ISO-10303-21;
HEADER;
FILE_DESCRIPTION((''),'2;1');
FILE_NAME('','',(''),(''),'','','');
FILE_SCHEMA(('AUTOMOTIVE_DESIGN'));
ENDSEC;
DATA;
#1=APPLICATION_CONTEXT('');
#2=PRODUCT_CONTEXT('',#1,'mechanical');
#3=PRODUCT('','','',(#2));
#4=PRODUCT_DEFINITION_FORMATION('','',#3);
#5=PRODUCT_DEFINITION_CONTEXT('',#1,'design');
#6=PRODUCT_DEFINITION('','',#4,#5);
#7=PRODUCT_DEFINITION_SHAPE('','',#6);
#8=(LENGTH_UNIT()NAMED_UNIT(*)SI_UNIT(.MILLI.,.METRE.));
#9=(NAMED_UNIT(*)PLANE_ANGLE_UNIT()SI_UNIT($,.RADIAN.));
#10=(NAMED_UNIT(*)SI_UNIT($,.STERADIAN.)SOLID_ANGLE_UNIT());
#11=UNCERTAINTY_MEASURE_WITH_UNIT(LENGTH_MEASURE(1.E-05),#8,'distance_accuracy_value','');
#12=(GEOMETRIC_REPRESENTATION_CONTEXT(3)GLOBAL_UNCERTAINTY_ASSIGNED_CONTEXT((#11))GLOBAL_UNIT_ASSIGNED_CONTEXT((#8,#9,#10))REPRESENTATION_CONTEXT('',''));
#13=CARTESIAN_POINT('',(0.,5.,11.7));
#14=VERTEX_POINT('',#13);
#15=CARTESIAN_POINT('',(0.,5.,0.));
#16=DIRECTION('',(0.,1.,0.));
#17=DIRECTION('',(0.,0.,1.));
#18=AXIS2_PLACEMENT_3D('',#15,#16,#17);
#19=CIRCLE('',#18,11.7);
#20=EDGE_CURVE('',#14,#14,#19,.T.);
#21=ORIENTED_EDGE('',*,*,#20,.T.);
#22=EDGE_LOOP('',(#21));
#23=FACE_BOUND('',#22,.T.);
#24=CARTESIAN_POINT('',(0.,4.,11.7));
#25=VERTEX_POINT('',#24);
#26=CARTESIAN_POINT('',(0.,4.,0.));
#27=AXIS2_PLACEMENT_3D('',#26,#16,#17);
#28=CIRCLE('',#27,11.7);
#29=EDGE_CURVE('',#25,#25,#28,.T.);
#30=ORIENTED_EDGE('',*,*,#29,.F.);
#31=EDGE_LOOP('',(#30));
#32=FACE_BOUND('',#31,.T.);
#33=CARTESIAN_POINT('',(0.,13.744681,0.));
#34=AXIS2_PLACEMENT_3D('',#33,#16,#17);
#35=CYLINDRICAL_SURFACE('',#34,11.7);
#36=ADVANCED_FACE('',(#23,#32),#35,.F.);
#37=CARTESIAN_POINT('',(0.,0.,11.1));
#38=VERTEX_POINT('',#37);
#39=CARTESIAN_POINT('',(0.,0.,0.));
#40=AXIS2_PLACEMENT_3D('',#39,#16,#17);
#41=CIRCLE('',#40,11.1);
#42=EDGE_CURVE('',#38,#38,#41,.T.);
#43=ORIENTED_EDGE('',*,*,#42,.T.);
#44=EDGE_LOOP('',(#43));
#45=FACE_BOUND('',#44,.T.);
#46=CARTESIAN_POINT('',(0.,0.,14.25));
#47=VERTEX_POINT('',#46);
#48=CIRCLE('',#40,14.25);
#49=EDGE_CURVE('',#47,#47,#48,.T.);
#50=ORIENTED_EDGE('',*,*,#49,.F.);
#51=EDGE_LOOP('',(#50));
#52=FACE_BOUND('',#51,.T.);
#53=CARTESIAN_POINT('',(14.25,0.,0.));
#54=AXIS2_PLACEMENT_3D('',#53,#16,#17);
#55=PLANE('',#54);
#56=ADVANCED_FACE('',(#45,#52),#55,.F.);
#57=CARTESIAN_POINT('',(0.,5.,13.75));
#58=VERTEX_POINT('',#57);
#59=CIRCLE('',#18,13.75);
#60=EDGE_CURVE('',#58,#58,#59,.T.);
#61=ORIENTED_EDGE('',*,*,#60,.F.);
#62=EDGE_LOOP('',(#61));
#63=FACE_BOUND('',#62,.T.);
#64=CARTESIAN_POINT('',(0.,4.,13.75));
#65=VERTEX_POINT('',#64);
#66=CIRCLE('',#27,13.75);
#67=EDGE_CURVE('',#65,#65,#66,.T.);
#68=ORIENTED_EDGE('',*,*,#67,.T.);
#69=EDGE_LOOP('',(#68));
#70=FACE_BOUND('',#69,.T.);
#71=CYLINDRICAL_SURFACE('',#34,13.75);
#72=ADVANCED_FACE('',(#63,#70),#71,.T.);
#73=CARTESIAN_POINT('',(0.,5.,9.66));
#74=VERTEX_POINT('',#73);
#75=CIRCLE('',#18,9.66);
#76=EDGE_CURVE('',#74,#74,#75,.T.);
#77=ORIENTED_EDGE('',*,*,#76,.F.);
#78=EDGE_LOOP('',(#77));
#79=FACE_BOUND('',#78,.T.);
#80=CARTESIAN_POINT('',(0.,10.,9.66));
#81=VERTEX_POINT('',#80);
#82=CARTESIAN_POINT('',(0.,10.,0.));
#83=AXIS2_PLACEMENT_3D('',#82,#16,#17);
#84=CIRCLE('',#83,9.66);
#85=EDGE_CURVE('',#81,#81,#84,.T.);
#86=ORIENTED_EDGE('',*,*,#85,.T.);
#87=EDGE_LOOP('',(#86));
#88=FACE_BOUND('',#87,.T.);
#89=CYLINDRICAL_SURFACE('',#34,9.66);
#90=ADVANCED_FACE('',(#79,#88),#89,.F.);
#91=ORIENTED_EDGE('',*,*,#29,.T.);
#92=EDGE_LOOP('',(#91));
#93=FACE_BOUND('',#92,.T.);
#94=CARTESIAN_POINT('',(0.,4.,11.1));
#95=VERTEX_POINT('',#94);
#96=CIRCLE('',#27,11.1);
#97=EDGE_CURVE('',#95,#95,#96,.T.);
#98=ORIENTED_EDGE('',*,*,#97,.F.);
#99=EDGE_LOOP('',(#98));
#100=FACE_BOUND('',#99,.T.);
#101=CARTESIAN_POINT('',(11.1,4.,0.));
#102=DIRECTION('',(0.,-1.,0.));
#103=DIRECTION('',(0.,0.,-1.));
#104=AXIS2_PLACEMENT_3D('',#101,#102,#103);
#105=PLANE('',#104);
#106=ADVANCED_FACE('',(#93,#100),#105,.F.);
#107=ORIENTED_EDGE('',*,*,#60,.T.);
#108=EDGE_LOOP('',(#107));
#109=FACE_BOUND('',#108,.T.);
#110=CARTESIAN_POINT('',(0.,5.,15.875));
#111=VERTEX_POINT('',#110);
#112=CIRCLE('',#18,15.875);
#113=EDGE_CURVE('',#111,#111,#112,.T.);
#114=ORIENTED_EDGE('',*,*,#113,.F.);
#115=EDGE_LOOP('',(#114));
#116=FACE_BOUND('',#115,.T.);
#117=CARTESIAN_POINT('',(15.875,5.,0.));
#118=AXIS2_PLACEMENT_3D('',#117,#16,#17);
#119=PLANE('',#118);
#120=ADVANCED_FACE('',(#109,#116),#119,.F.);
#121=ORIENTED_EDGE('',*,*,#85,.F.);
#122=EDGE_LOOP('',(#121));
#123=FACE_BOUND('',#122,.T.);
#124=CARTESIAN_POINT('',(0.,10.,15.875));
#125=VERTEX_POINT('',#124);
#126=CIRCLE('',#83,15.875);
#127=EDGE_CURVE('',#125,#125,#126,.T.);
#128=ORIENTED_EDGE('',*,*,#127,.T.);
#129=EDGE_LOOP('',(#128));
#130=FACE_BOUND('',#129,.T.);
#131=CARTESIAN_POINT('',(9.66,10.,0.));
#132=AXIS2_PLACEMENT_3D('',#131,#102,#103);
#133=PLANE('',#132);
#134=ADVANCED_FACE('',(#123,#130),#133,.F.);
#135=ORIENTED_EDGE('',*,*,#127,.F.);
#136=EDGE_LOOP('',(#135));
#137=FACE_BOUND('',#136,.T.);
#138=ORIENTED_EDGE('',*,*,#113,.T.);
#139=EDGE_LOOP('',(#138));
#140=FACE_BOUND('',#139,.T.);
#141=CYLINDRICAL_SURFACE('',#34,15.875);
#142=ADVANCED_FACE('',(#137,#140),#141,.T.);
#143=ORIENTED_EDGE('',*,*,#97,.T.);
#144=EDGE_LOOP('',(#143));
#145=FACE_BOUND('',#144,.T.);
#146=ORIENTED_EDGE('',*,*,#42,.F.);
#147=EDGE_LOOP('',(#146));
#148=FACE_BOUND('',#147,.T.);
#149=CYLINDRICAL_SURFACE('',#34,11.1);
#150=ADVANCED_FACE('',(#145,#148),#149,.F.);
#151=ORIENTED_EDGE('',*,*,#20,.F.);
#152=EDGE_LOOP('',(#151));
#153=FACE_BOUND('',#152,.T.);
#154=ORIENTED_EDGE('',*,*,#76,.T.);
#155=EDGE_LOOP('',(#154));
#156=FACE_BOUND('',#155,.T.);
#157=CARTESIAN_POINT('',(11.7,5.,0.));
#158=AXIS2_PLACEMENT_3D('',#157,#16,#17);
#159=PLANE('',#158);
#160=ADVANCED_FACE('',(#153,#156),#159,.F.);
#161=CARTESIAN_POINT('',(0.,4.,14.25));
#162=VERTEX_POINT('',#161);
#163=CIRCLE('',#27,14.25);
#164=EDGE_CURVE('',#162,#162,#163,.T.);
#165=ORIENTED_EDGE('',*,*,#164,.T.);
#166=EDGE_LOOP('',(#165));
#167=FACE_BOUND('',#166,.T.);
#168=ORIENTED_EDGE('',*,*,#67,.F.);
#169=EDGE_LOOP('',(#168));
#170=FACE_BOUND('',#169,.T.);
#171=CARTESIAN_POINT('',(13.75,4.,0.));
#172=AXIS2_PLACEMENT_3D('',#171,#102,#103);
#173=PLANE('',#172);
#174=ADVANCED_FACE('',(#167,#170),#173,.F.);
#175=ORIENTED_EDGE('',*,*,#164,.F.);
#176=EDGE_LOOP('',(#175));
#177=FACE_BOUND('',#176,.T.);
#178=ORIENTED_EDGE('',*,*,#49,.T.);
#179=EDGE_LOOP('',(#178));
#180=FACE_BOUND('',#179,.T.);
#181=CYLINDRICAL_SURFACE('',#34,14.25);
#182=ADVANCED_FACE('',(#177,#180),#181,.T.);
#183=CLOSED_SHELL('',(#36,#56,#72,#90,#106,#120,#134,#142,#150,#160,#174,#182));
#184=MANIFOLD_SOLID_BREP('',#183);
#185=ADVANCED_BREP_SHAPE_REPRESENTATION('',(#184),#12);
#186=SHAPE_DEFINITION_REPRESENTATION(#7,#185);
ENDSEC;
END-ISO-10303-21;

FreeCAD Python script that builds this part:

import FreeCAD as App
import Part
import Sketcher
from FreeCAD import Vector

doc = App.newDocument("Part")
body = doc.addObject("PartDesign::Body", "Body")

sketch1 = doc.addObject("Sketcher::SketchObject", "Sketch")
body.addObject(sketch1)
sketch1.AttachmentSupport = (doc.XY_Plane, [""])
sketch1.MapMode = "FlatFace"
sketch1.addGeometry([
    Part.LineSegment(Vector(11.1, 0, 0), Vector(14.25, 0, 0)),
    Part.LineSegment(Vector(14.25, 0, 0), Vector(14.25, 4, 0)),
    Part.LineSegment(Vector(14.25, 4, 0), Vector(13.75, 4, 0)),
    Part.LineSegment(Vector(13.75, 4, 0), Vector(13.75, 5, 0)),
    Part.LineSegment(Vector(13.75, 5, 0), Vector(15.875, 5, 0)),
    Part.LineSegment(Vector(15.875, 5, 0), Vector(15.875, 10, 0)),
    Part.LineSegment(Vector(15.875, 10, 0), Vector(9.66, 10, 0)),
    Part.LineSegment(Vector(9.66, 10, 0), Vector(9.66, 5, 0)),
    Part.LineSegment(Vector(9.66, 5, 0), Vector(11.7, 5, 0)),
    Part.LineSegment(Vector(11.7, 5, 0), Vector(11.7, 4, 0)),
    Part.LineSegment(Vector(11.7, 4, 0), Vector(11.1, 4, 0)),
    Part.LineSegment(Vector(11.1, 4, 0), Vector(11.1, 0, 0)),
], False)
sketch1.addConstraint([
    Sketcher.Constraint("Coincident", 0, 2, 1, 1),
    Sketcher.Constraint("Coincident", 1, 2, 2, 1),
    Sketcher.Constraint("Coincident", 2, 2, 3, 1),
    Sketcher.Constraint("Coincident", 3, 2, 4, 1),
    Sketcher.Constraint("Coincident", 4, 2, 5, 1),
    Sketcher.Constraint("Coincident", 5, 2, 6, 1),
    Sketcher.Constraint("Coincident", 6, 2, 7, 1),
    Sketcher.Constraint("Coincident", 7, 2, 8, 1),
    Sketcher.Constraint("Coincident", 8, 2, 9, 1),
    Sketcher.Constraint("Coincident", 9, 2, 10, 1),
    Sketcher.Constraint("Coincident", 10, 2, 11, 1),
    Sketcher.Constraint("Coincident", 11, 2, 0, 1),
    Sketcher.Constraint("Horizontal", 0),
    Sketcher.Constraint("Vertical", 1),
    Sketcher.Constraint("Horizontal", 2),
    Sketcher.Constraint("Vertical", 3),
    Sketcher.Constraint("Horizontal", 4),
    Sketcher.Constraint("Vertical", 5),
    Sketcher.Constraint("Horizontal", 6),
    Sketcher.Constraint("Vertical", 7),
    Sketcher.Constraint("Horizontal", 8),
    Sketcher.Constraint("Vertical", 9),
    Sketcher.Constraint("Horizontal", 10),
    Sketcher.Constraint("Vertical", 11),
    Sketcher.Constraint("PointOnObject", 0, 2, -1),
    Sketcher.Constraint("Horizontal", 4, 2, 7, 2),
    Sketcher.Constraint("Horizontal", 2, 2, 9, 2),
    Sketcher.Constraint("DistanceY", 1, 1, 1, 2, 4.0),
    Sketcher.Constraint("DistanceY", 3, 1, 3, 2, 1.0),
    Sketcher.Constraint("DistanceY", 5, 1, 5, 2, 5.0),
    Sketcher.Constraint("DistanceX", 2, 2, 2, 1, 0.5),
    Sketcher.Constraint("DistanceX", 10, 2, 10, 1, 0.6),
    Sketcher.Constraint("DistanceX", 0, 1, 0, 2, 3.15),
    Sketcher.Constraint("DistanceX", 8, 1, 8, 2, 2.04),
    Sketcher.Constraint("DistanceX", -1, 1, 8, 2, 11.7),
    Sketcher.Constraint("DistanceX", 4, 1, 4, 2, 2.125),
])
revolution = doc.addObject("PartDesign::Revolution", "Revolution")
body.addObject(revolution)
revolution.Profile = sketch1
revolution.ReferenceAxis = (sketch1, ["V_Axis"])
revolution.Angle = 360

doc.recompute()
